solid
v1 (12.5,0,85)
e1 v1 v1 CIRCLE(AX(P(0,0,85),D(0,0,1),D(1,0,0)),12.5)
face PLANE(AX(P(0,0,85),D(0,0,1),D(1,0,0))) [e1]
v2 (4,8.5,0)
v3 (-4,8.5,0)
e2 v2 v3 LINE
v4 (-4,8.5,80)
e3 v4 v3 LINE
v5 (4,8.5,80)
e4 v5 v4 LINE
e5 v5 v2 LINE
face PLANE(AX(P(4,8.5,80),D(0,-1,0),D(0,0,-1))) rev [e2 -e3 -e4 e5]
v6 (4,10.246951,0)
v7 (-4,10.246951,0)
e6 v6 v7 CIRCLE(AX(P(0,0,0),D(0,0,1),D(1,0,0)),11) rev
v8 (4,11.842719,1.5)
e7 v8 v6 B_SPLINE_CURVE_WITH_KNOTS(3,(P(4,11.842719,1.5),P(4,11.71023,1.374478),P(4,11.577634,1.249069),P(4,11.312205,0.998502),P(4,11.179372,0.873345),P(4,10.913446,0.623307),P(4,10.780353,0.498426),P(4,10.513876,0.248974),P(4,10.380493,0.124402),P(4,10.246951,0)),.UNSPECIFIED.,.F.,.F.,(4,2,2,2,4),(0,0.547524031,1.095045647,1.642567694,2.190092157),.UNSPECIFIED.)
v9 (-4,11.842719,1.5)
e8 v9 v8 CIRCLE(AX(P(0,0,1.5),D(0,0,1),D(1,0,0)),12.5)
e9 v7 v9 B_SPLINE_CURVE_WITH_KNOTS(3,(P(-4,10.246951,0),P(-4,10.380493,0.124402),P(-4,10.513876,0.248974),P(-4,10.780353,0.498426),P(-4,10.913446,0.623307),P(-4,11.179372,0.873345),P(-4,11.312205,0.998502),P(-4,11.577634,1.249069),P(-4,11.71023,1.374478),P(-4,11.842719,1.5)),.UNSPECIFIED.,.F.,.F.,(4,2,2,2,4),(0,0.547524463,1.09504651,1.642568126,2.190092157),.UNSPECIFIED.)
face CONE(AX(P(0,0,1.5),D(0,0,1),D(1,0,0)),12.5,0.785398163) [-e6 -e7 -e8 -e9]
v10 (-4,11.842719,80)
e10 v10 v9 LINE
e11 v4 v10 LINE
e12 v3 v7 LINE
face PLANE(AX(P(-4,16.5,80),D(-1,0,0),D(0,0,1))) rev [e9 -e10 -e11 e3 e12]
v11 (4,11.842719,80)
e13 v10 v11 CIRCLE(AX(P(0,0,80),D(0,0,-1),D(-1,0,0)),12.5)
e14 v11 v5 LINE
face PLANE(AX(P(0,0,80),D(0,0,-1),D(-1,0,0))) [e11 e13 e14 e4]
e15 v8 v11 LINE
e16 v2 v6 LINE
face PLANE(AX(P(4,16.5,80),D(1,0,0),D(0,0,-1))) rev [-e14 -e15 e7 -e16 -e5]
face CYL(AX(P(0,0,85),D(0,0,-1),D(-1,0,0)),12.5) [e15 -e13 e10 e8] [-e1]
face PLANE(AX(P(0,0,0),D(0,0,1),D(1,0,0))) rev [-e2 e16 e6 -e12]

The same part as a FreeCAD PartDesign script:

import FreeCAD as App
import Part
import Sketcher
from FreeCAD import Vector
Q = App.Units.Quantity


def edges_at(feature, points):
    """Names of the edges that pass closest to the given points."""
    edges = feature.Shape.Edges
    near = lambda p: min(range(len(edges)), key=lambda i: edges[i].distToShape(Part.Vertex(*p))[0])
    return sorted({f"Edge{near(p) + 1}" for p in points})

doc = App.newDocument("Part")
params = doc.addObject("Spreadsheet::Sheet", "Params")
for row, (alias, value) in enumerate([
    ("sketch1_diameter", "25 mm"),
    ("pad1_length", "85 mm"),
    ("sketch2_width", "8 mm"),
    ("pocket1_length", "80 mm"),
    ("chamfer_size", "1.5 mm"),
], start=1):
    params.set(f"A{row}", alias)
    params.set(f"B{row}", "=" + value)
    params.setAlias(f"B{row}", alias)

body = doc.addObject("PartDesign::Body", "Body")

sketch1 = doc.addObject("Sketcher::SketchObject", "Sketch")
body.addObject(sketch1)
sketch1.AttachmentSupport = (doc.XY_Plane, [""])
sketch1.MapMode = "FlatFace"
sketch1.addGeometry(Part.Circle(Vector(0, 0, 0), Vector(0, 0, 1), 12.5), False)
sketch1.addConstraint([
    Sketcher.Constraint("Coincident", 0, 3, -1, 1),
    Sketcher.Constraint("Diameter", 0, Q("25 mm")),
])
sketch1.setExpression("Constraints[1]", "Params.sketch1_diameter")
pad1 = doc.addObject("PartDesign::Pad", "Pad")
body.addObject(pad1)
pad1.Profile = sketch1
pad1.setExpression("Length", "Params.pad1_length")

sketch2 = doc.addObject("Sketcher::SketchObject", "Sketch001")
body.addObject(sketch2)
sketch2.AttachmentSupport = (doc.XY_Plane, [""])
sketch2.MapMode = "FlatFace"
sketch2.addGeometry([
    Part.LineSegment(Vector(4, 16.5, 0), Vector(4, 8.5, 0)),
    Part.LineSegment(Vector(4, 8.5, 0), Vector(-4, 8.5, 0)),
    Part.LineSegment(Vector(-4, 8.5, 0), Vector(-4, 16.5, 0)),
    Part.LineSegment(Vector(-4, 16.5, 0), Vector(4, 16.5, 0)),
], False)
sketch2.addConstraint([
    Sketcher.Constraint("Coincident", 0, 2, 1, 1),
    Sketcher.Constraint("Coincident", 1, 2, 2, 1),
    Sketcher.Constraint("Coincident", 2, 2, 3, 1),
    Sketcher.Constraint("Coincident", 3, 2, 0, 1),
    Sketcher.Constraint("Vertical", 0),
    Sketcher.Constraint("Horizontal", 1),
    Sketcher.Constraint("Vertical", 2),
    Sketcher.Constraint("Horizontal", 3),
    Sketcher.Constraint("Equal", 3, 0),
    Sketcher.Constraint("DistanceX", 1, 2, 1, 1, Q("8 mm")),
    Sketcher.Constraint("DistanceX", -1, 1, 0, 2, Q("4 mm")),
    Sketcher.Constraint("DistanceY", -1, 1, 0, 2, Q("8.5 mm")),
])
sketch2.setExpression("Constraints[9]", "Params.sketch2_width")
pocket1 = doc.addObject("PartDesign::Pocket", "Pocket")
body.addObject(pocket1)
pocket1.Profile = sketch2
pocket1.setExpression("Length", "Params.pocket1_length")
pocket1.Reversed = True
doc.recompute()

chamfer = doc.addObject("PartDesign::Chamfer", "Chamfer")
body.addObject(chamfer)
chamfer.Base = (pocket1, edges_at(pocket1, [(-7.289, -10.155, 0)]))
chamfer.setExpression("Size", "Params.chamfer_size")

doc.recompute()
